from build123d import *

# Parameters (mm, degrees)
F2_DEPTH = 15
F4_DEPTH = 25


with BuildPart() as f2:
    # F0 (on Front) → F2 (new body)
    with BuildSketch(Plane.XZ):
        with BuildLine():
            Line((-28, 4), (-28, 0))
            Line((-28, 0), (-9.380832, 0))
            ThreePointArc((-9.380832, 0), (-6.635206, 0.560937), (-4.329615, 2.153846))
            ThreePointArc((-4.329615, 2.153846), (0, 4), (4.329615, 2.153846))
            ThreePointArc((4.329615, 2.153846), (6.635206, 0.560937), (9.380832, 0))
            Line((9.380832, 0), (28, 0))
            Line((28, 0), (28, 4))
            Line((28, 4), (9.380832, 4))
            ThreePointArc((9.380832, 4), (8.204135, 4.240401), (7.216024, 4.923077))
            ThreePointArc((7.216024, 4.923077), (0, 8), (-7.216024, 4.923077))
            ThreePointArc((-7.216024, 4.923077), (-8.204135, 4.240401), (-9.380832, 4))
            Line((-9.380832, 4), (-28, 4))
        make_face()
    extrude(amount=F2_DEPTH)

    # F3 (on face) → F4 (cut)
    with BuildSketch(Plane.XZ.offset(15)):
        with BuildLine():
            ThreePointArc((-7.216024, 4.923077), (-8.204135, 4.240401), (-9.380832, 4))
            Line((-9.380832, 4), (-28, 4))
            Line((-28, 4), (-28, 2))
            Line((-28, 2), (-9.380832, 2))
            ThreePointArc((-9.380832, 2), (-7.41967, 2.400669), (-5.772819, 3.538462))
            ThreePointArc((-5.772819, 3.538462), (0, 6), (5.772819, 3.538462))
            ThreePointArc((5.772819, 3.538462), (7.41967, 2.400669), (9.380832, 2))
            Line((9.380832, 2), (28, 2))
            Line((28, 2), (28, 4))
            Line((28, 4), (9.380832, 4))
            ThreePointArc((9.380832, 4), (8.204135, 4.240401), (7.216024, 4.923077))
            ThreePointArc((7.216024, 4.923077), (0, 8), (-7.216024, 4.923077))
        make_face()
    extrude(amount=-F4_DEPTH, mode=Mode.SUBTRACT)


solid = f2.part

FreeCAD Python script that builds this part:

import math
import FreeCAD as App
import Part
import Sketcher
from FreeCAD import Vector

doc = App.newDocument("Part")
body = doc.addObject("PartDesign::Body", "Body")

# Sketch on XZ plane
sketch1 = doc.addObject("Sketcher::SketchObject", "Sketch")
body.addObject(sketch1)
sketch1.AttachmentSupport = (doc.XZ_Plane, [""])
sketch1.MapMode = "FlatFace"
sketch1.addGeometry(Part.LineSegment(Vector(-28, 4, 0), Vector(-28, 0, 0)), False)
sketch1.addGeometry(Part.LineSegment(Vector(-28, 0, 0), Vector(-9.4, 0, 0)), False)
sketch1.addGeometry(Part.ArcOfCircle(Part.Circle(Vector(-9.4, 7, 0), Vector(0, 0, 1), 7), math.radians(-90), math.radians(-44)), False)
sketch1.addGeometry(Part.ArcOfCircle(Part.Circle(Vector(0, -2, 0), Vector(0, 0, 1), 6), math.radians(44), math.radians(136)), False)
sketch1.addGeometry(Part.ArcOfCircle(Part.Circle(Vector(9.4, 7, 0), Vector(0, 0, 1), 7), math.radians(-136), math.radians(-90)), False)
sketch1.addGeometry(Part.LineSegment(Vector(9.4, 0, 0), Vector(28, 0, 0)), False)
sketch1.addGeometry(Part.LineSegment(Vector(28, 0, 0), Vector(28, 4, 0)), False)
sketch1.addGeometry(Part.LineSegment(Vector(28, 4, 0), Vector(9.4, 4, 0)), False)
sketch1.addGeometry(Part.ArcOfCircle(Part.Circle(Vector(9.4, 7, 0), Vector(0, 0, 1), 3), math.radians(-136), math.radians(-90)), False)
sketch1.addGeometry(Part.ArcOfCircle(Part.Circle(Vector(0, -2, 0), Vector(0, 0, 1), 10), math.radians(44), math.radians(136)), False)
sketch1.addGeometry(Part.ArcOfCircle(Part.Circle(Vector(-9.4, 7, 0), Vector(0, 0, 1), 3), math.radians(-90), math.radians(-44)), False)
sketch1.addGeometry(Part.LineSegment(Vector(-9.4, 4, 0), Vector(-28, 4, 0)), False)
sketch1.addConstraint(Sketcher.Constraint("Coincident", 0, 2, 1, 1))
sketch1.addConstraint(Sketcher.Constraint("Tangent", 1, 2, 2, 1))
sketch1.addConstraint(Sketcher.Constraint("Tangent", 2, 2, 3, 2))
sketch1.addConstraint(Sketcher.Constraint("Tangent", 3, 1, 4, 1))
sketch1.addConstraint(Sketcher.Constraint("Tangent", 4, 2, 5, 1))
sketch1.addConstraint(Sketcher.Constraint("Coincident", 5, 2, 6, 1))
sketch1.addConstraint(Sketcher.Constraint("Coincident", 6, 2, 7, 1))
sketch1.addConstraint(Sketcher.Constraint("Tangent", 7, 2, 8, 2))
sketch1.addConstraint(Sketcher.Constraint("Tangent", 8, 1, 9, 1))
sketch1.addConstraint(Sketcher.Constraint("Tangent", 9, 2, 10, 2))
sketch1.addConstraint(Sketcher.Constraint("Tangent", 10, 1, 11, 1))
sketch1.addConstraint(Sketcher.Constraint("Coincident", 11, 2, 0, 1))
sketch1.addConstraint(Sketcher.Constraint("Vertical", 0))
sketch1.addConstraint(Sketcher.Constraint("Horizontal", 1))
sketch1.addConstraint(Sketcher.Constraint("Horizontal", 5))
sketch1.addConstraint(Sketcher.Constraint("Vertical", 6))
sketch1.addConstraint(Sketcher.Constraint("Horizontal", 7))
sketch1.addConstraint(Sketcher.Constraint("Horizontal", 11))
sketch1.addConstraint(Sketcher.Constraint("Coincident", 8, 3, 4, 3))
sketch1.addConstraint(Sketcher.Constraint("Coincident", 9, 3, 3, 3))
sketch1.addConstraint(Sketcher.Constraint("Coincident", 10, 3, 2, 3))
sketch1.addConstraint(Sketcher.Constraint("Equal", 2, 4))
sketch1.addConstraint(Sketcher.Constraint("Symmetric", 1, 2, 4, 2, -1, 1))
sketch1.addConstraint(Sketcher.Constraint("Symmetric", 0, 2, 5, 2, -2))
sketch1.addConstraint(Sketcher.Constraint("Radius", 3, 6.000001))
sketch1.addConstraint(Sketcher.Constraint("Radius", 8, 2.999998))
sketch1.addConstraint(Sketcher.Constraint("Radius", 9, 10.0))
sketch1.addConstraint(Sketcher.Constraint("DistanceY", 3, 3, -1, 1, 2.000001))
sketch1.addConstraint(Sketcher.Constraint("DistanceX", 0, 2, -1, 1, 28.0))
pad1 = doc.addObject("PartDesign::Pad", "Pad")
body.addObject(pad1)
pad1.Profile = sketch1
pad1.Length = 15

# Sketch on XZ plane
sketch2 = doc.addObject("Sketcher::SketchObject", "Sketch001")
body.addObject(sketch2)
sketch2.AttachmentSupport = (doc.XZ_Plane, [""])
sketch2.MapMode = "FlatFace"
sketch2.AttachmentOffset = App.Placement(Vector(0, 0, 15), App.Rotation())
sketch2.addGeometry(Part.ArcOfCircle(Part.Circle(Vector(-9.4, 7, 0), Vector(0, 0, 1), 3), math.radians(-90), math.radians(-44)), False)
sketch2.addGeometry(Part.LineSegment(Vector(-9.4, 4, 0), Vector(-28, 4, 0)), False)
sketch2.addGeometry(Part.LineSegment(Vector(-28, 4, 0), Vector(-28, 2, 0)), False)
sketch2.addGeometry(Part.LineSegment(Vector(-28, 2, 0), Vector(-9.4, 2, 0)), False)
sketch2.addGeometry(Part.ArcOfCircle(Part.Circle(Vector(-9.4, 7, 0), Vector(0, 0, 1), 5), math.radians(-90), math.radians(-44)), False)
sketch2.addGeometry(Part.ArcOfCircle(Part.Circle(Vector(0, -2, 0), Vector(0, 0, 1), 8), math.radians(44), math.radians(136)), False)
sketch2.addGeometry(Part.ArcOfCircle(Part.Circle(Vector(9.4, 7, 0), Vector(0, 0, 1), 5), math.radians(-136), math.radians(-90)), False)
sketch2.addGeometry(Part.LineSegment(Vector(9.4, 2, 0), Vector(28, 2, 0)), False)
sketch2.addGeometry(Part.LineSegment(Vector(28, 2, 0), Vector(28, 4, 0)), False)
sketch2.addGeometry(Part.LineSegment(Vector(28, 4, 0), Vector(9.4, 4, 0)), False)
sketch2.addGeometry(Part.ArcOfCircle(Part.Circle(Vector(9.4, 7, 0), Vector(0, 0, 1), 3), math.radians(-136), math.radians(-90)), False)
sketch2.addGeometry(Part.ArcOfCircle(Part.Circle(Vector(0, -2, 0), Vector(0, 0, 1), 10), math.radians(44), math.radians(136)), False)
sketch2.addConstraint(Sketcher.Constraint("Tangent", 0, 1, 1, 1))
sketch2.addConstraint(Sketcher.Constraint("Coincident", 1, 2, 2, 1))
sketch2.addConstraint(Sketcher.Constraint("Coincident", 2, 2, 3, 1))
sketch2.addConstraint(Sketcher.Constraint("Tangent", 3, 2, 4, 1))
sketch2.addConstraint(Sketcher.Constraint("Tangent", 4, 2, 5, 2))
sketch2.addConstraint(Sketcher.Constraint("Tangent", 5, 1, 6, 1))
sketch2.addConstraint(Sketcher.Constraint("Tangent", 6, 2, 7, 1))
sketch2.addConstraint(Sketcher.Constraint("Coincident", 7, 2, 8, 1))
sketch2.addConstraint(Sketcher.Constraint("Coincident", 8, 2, 9, 1))
sketch2.addConstraint(Sketcher.Constraint("Tangent", 9, 2, 10, 2))
sketch2.addConstraint(Sketcher.Constraint("Tangent", 10, 1, 11, 1))
sketch2.addConstraint(Sketcher.Constraint("Tangent", 11, 2, 0, 2))
sketch2.addConstraint(Sketcher.Constraint("Horizontal", 1))
sketch2.addConstraint(Sketcher.Constraint("Vertical", 2))
sketch2.addConstraint(Sketcher.Constraint("Horizontal", 3))
sketch2.addConstraint(Sketcher.Constraint("Horizontal", 7))
sketch2.addConstraint(Sketcher.Constraint("Vertical", 8))
sketch2.addConstraint(Sketcher.Constraint("Horizontal", 9))
sketch2.addConstraint(Sketcher.Constraint("Coincident", 4, 3, 0, 3))
sketch2.addConstraint(Sketcher.Constraint("Coincident", 10, 3, 6, 3))
sketch2.addConstraint(Sketcher.Constraint("Coincident", 11, 3, 5, 3))
sketch2.addConstraint(Sketcher.Constraint("Equal", 4, 6))
sketch2.addConstraint(Sketcher.Constraint("Symmetric", 0, 3, 6, 3, -2))
sketch2.addConstraint(Sketcher.Constraint("Equal", 3, 7))
sketch2.addConstraint(Sketcher.Constraint("Radius", 0, 2.999998))
sketch2.addConstraint(Sketcher.Constraint("Radius", 4, 5.0))
sketch2.addConstraint(Sketcher.Constraint("Radius", 5, 8.0))
sketch2.addConstraint(Sketcher.Constraint("DistanceY", -1, 1, 0, 3, 6.999998))
sketch2.addConstraint(Sketcher.Constraint("DistanceY", 5, 3, -1, 1, 2.0))
sketch2.addConstraint(Sketcher.Constraint("DistanceX", 1, 2, -1, 1, 28.0))
pocket1 = doc.addObject("PartDesign::Pocket", "Pocket")
body.addObject(pocket1)
pocket1.Profile = sketch2
pocket1.Length = 25

doc.recompute()
